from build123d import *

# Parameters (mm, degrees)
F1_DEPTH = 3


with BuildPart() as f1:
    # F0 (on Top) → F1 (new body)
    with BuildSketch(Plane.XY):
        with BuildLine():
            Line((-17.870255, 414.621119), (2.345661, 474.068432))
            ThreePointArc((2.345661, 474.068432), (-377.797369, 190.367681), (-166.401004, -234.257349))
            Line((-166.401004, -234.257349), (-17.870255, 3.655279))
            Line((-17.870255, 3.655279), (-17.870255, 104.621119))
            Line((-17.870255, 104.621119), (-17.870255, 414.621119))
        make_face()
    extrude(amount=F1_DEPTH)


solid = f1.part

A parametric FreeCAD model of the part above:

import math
import FreeCAD as App
import Part
import Sketcher

V = App.Vector
Q = App.Units.Quantity

doc = App.newDocument("Part")
params = doc.addObject("Spreadsheet::Sheet", "Params")
for row, (alias, value) in enumerate([
    ("sketch1_radius", "370 mm"),
    ("pad1_length", "3 mm"),
], start=1):
    params.set(f"A{row}", alias)
    params.set(f"B{row}", "=" + value)
    params.setAlias(f"B{row}", alias)

body = doc.addObject("PartDesign::Body", "Body")

# Sketch on XY plane
sketch1 = body.newObject("Sketcher::SketchObject", "Sketch")
sketch1.AttachmentSupport = (doc.getObject("XY_Plane"), [""])
sketch1.MapMode = "FlatFace"
sketch1.addGeometry([
    Part.LineSegment(V(-18, 415, 0), V(2, 474, 0)),
    Part.ArcOfCircle(Part.Circle(V(-18, 105, 0), V(0, 0, 1), 370), math.radians(87), math.radians(246)),
    Part.LineSegment(V(-166, -234, 0), V(-18, 4, 0)),
    Part.LineSegment(V(-18, 4, 0), V(-18, 415, 0)),
], False)
sketch1.addConstraint([
    Sketcher.Constraint("Coincident", 0, 2, 1, 1),
    Sketcher.Constraint("Coincident", 1, 2, 2, 1),
    Sketcher.Constraint("Coincident", 2, 2, 3, 1),
    Sketcher.Constraint("Coincident", 3, 2, 0, 1),
    Sketcher.Constraint("Vertical", 3),
    Sketcher.Constraint("Vertical", 1, 3, 2, 2),
    Sketcher.Constraint("Radius", 1, Q("370 mm")),
    Sketcher.Constraint("DistanceY", 1, 3, 3, 2, Q("309.999999 mm")),
    Sketcher.Constraint("DistanceY", 3, 1, 3, 2, Q("410.96584 mm")),
    Sketcher.Constraint("Distance", 2, Q("280.470679 mm")),
    Sketcher.Constraint("DistanceY", -1, 1, 1, 3, Q("104.62112 mm")),
    Sketcher.Constraint("DistanceX", -1, 1, 0, 2, Q("2.345661 mm")),
    Sketcher.Constraint("DistanceY", -1, 1, 0, 2, Q("474.068432 mm")),
])
sketch1.setExpression("Constraints[6]", "Params.sketch1_radius")
pad1 = body.newObject("PartDesign::Pad", "Pad")
pad1.Profile = sketch1
pad1.setExpression("Length", "Params.pad1_length")

doc.recompute()
